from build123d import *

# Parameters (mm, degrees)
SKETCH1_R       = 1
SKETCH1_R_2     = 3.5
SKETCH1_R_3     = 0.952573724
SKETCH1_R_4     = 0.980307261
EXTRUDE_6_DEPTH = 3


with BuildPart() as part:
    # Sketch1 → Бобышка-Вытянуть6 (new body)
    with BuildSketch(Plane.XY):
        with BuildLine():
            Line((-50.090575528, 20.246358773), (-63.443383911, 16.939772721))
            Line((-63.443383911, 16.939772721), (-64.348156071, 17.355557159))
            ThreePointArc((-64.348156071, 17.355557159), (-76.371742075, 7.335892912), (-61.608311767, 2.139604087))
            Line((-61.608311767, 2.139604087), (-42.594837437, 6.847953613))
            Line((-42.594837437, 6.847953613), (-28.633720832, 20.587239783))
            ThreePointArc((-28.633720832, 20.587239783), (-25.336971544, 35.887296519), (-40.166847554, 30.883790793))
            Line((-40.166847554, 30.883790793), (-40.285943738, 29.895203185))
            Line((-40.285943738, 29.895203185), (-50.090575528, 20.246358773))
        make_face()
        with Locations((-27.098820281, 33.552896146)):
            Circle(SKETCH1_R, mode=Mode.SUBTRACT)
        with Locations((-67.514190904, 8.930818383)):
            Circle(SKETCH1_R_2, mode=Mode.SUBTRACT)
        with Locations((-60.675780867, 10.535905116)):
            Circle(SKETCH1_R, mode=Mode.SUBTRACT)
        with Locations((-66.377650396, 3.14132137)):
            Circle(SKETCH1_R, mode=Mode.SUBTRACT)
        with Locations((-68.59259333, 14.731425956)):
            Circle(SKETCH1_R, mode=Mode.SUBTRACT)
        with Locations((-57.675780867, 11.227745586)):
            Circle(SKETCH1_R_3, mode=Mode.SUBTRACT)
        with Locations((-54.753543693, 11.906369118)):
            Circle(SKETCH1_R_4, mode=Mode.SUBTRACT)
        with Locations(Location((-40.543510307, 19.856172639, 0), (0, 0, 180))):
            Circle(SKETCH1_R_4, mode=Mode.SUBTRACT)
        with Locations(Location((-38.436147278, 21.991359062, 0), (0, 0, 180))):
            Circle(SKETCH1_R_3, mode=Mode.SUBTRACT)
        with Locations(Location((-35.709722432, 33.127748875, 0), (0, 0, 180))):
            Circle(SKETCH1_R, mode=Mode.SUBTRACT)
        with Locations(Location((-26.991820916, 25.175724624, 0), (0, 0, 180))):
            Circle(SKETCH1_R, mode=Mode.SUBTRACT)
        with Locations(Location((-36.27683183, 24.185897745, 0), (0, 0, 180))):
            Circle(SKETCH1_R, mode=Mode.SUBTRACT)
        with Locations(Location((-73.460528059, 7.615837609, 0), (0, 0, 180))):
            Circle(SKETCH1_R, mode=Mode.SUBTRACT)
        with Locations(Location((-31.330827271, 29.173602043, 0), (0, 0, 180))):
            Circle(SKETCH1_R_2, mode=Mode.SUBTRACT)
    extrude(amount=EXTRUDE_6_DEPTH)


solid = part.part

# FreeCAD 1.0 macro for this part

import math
import FreeCAD as App
import Part
import Sketcher
from FreeCAD import Vector
Q = App.Units.Quantity

doc = App.newDocument("Part")
body = doc.addObject("PartDesign::Body", "Body")

sketch1 = body.newObject("Sketcher::SketchObject", "Sketch")
sketch1.AttachmentSupport = (doc.getObject("XY_Plane"), [""])
sketch1.MapMode = "FlatFace"
sketch1.addGeometry([
    Part.LineSegment(Vector(-50.1, 20.2, 0), Vector(-63.4, 16.9, 0)),
    Part.LineSegment(Vector(-63.4, 16.9, 0), Vector(-64.3, 17.4, 0)),
    Part.ArcOfCircle(Part.Circle(Vector(-67.5, 8.9, 0), Vector(0, 0, 1), 9), math.radians(69), math.radians(311)),
    Part.LineSegment(Vector(-61.6, 2.1, 0), Vector(-42.6, 6.8, 0)),
    Part.LineSegment(Vector(-42.6, 6.8, 0), Vector(-28.6, 20.6, 0)),
    Part.ArcOfCircle(Part.Circle(Vector(-31.3, 29.2, 0), Vector(0, 0, 1), 9), math.radians(-73), math.radians(169)),
    Part.LineSegment(Vector(-40.2, 30.9, 0), Vector(-40.3, 29.9, 0)),
    Part.LineSegment(Vector(-40.3, 29.9, 0), Vector(-50.1, 20.2, 0)),
    Part.Circle(Vector(-66.4, 3.1, 0), Vector(0, 0, 1), 1),
    Part.Circle(Vector(-73.5, 7.6, 0), Vector(0, 0, 1), 1),
    Part.Circle(Vector(-67.5, 8.9, 0), Vector(0, 0, 1), 3.5),
    Part.Circle(Vector(-68.6, 14.7, 0), Vector(0, 0, 1), 1),
    Part.Circle(Vector(-60.7, 10.5, 0), Vector(0, 0, 1), 1),
    Part.Circle(Vector(-57.7, 11.2, 0), Vector(0, 0, 1), 1),
    Part.Circle(Vector(-54.8, 11.9, 0), Vector(0, 0, 1), 1),
    Part.Circle(Vector(-40.5, 19.9, 0), Vector(0, 0, 1), 1),
    Part.Circle(Vector(-38.4, 22, 0), Vector(0, 0, 1), 1),
    Part.Circle(Vector(-36.3, 24.2, 0), Vector(0, 0, 1), 1),
    Part.Circle(Vector(-27, 25.2, 0), Vector(0, 0, 1), 1),
    Part.Circle(Vector(-31.3, 29.2, 0), Vector(0, 0, 1), 3.5),
    Part.Circle(Vector(-35.7, 33.1, 0), Vector(0, 0, 1), 1),
    Part.Circle(Vector(-27.1, 33.6, 0), Vector(0, 0, 1), 1),
], False)
sketch1.addConstraint([
    Sketcher.Constraint("Coincident", 0, 2, 1, 1),
    Sketcher.Constraint("Coincident", 1, 2, 2, 1),
    Sketcher.Constraint("Coincident", 2, 2, 3, 1),
    Sketcher.Constraint("Coincident", 3, 2, 4, 1),
    Sketcher.Constraint("Coincident", 4, 2, 5, 1),
    Sketcher.Constraint("Coincident", 5, 2, 6, 1),
    Sketcher.Constraint("Coincident", 6, 2, 7, 1),
    Sketcher.Constraint("Coincident", 7, 2, 0, 1),
    Sketcher.Constraint("Coincident", 10, 3, 2, 3),
    Sketcher.Constraint("Coincident", 19, 3, 5, 3),
    Sketcher.Constraint("Equal", 2, 5),
    Sketcher.Constraint("Equal", 8, 9),
    Sketcher.Constraint("Equal", 9, 11),
    Sketcher.Constraint("Equal", 11, 12),
    Sketcher.Constraint("Equal", 14, 15),
    Sketcher.Constraint("Equal", 13, 16),
    Sketcher.Constraint("Equal", 12, 17),
    Sketcher.Constraint("Equal", 17, 18),
    Sketcher.Constraint("Equal", 10, 19),
    Sketcher.Constraint("Equal", 18, 20),
    Sketcher.Constraint("Equal", 20, 21),
    Sketcher.Constraint("Parallel", 0, 3),
    Sketcher.Constraint("Parallel", 4, 7),
    Sketcher.Constraint("Equal", 3, 4),
    Sketcher.Constraint("Equal", 1, 6),
    Sketcher.Constraint("Equal", 0, 7),
    Sketcher.Constraint("Diameter", 8, Q("2 mm")),
    Sketcher.Constraint("Diameter", 10, Q("7 mm")),
    Sketcher.Constraint("Radius", 2, Q("9 mm")),
    Sketcher.Constraint("DistanceX", 12, 3, 13, 3, Q("3 mm")),
    Sketcher.Constraint("Diameter", 13, Q("1.905147 mm")),
    Sketcher.Constraint("Diameter", 14, Q("1.960615 mm")),
    Sketcher.Constraint("DistanceX", 21, 3, 18, 3, Q("0.106999 mm")),
    Sketcher.Constraint("DistanceY", 17, 3, 21, 3, Q("9.366998 mm")),
    Sketcher.Constraint("DistanceY", 7, 2, 16, 3, Q("1.745 mm")),
    Sketcher.Constraint("DistanceX", 9, 3, 5, 3, Q("42.129701 mm")),
    Sketcher.Constraint("DistanceX", 20, 3, 18, 3, Q("8.717902 mm")),
    Sketcher.Constraint("DistanceY", 2, 2, 12, 3, Q("8.396301 mm")),
    Sketcher.Constraint("DistanceX", 4, 2, 18, 3, Q("1.6419 mm")),
    Sketcher.Constraint("DistanceX", 5, 2, 16, 3, Q("1.7307 mm")),
    Sketcher.Constraint("DistanceY", 5, 3, 6, 2, Q("0.721601 mm")),
    Sketcher.Constraint("Distance", 3, Q("19.587771 mm")),
    Sketcher.Constraint("DistanceX", 2, 3, -1, 1, Q("67.514191 mm")),
    Sketcher.Constraint("DistanceY", -1, 1, 2, 3, Q("8.930818 mm")),
    Sketcher.Constraint("DistanceX", 8, 3, -1, 1, Q("66.37765 mm")),
    Sketcher.Constraint("DistanceY", -1, 1, 8, 3, Q("3.141321 mm")),
    Sketcher.Constraint("DistanceX", 9, 3, -1, 1, Q("73.460528 mm")),
    Sketcher.Constraint("DistanceX", 12, 3, -1, 1, Q("60.675781 mm")),
    Sketcher.Constraint("DistanceY", -1, 1, 14, 3, Q("11.906369 mm")),
    Sketcher.Constraint("DistanceX", 15, 3, -1, 1, Q("40.54351 mm")),
    Sketcher.Constraint("DistanceY", -1, 1, 16, 3, Q("21.991359 mm")),
    Sketcher.Constraint("DistanceX", 17, 3, -1, 1, Q("36.276832 mm")),
    Sketcher.Constraint("DistanceX", 18, 3, -1, 1, Q("26.991821 mm")),
    Sketcher.Constraint("DistanceY", -1, 1, 20, 3, Q("33.127749 mm")),
    Sketcher.Constraint("DistanceX", 2, 2, -1, 1, Q("61.608312 mm")),
    Sketcher.Constraint("DistanceY", -1, 1, 4, 2, Q("20.58724 mm")),
    Sketcher.Constraint("DistanceY", -1, 1, 5, 2, Q("30.883791 mm")),
    Sketcher.Constraint("DistanceY", 9, 3, 2, 3, Q("1.314981 mm")),
    Sketcher.Constraint("DistanceY", 9, 3, 11, 3, Q("7.115588 mm")),
    Sketcher.Constraint("DistanceY", 12, 3, 13, 3, Q("0.69184 mm")),
    Sketcher.Constraint("DistanceX", 11, 3, 14, 3, Q("13.83905 mm")),
    Sketcher.Constraint("DistanceY", 15, 3, 5, 3, Q("9.317429 mm")),
    Sketcher.Constraint("DistanceY", 16, 3, 17, 3, Q("2.194539 mm")),
    Sketcher.Constraint("DistanceX", 14, 3, 17, 3, Q("18.476712 mm")),
    Sketcher.Constraint("DistanceY", 15, 3, 18, 3, Q("5.319552 mm")),
    Sketcher.Constraint("DistanceX", 11, 3, 0, 2, Q("5.149209 mm")),
])
pad1 = body.newObject("PartDesign::Pad", "Pad")
pad1.Profile = sketch1
pad1.Length = 3

doc.recompute()
